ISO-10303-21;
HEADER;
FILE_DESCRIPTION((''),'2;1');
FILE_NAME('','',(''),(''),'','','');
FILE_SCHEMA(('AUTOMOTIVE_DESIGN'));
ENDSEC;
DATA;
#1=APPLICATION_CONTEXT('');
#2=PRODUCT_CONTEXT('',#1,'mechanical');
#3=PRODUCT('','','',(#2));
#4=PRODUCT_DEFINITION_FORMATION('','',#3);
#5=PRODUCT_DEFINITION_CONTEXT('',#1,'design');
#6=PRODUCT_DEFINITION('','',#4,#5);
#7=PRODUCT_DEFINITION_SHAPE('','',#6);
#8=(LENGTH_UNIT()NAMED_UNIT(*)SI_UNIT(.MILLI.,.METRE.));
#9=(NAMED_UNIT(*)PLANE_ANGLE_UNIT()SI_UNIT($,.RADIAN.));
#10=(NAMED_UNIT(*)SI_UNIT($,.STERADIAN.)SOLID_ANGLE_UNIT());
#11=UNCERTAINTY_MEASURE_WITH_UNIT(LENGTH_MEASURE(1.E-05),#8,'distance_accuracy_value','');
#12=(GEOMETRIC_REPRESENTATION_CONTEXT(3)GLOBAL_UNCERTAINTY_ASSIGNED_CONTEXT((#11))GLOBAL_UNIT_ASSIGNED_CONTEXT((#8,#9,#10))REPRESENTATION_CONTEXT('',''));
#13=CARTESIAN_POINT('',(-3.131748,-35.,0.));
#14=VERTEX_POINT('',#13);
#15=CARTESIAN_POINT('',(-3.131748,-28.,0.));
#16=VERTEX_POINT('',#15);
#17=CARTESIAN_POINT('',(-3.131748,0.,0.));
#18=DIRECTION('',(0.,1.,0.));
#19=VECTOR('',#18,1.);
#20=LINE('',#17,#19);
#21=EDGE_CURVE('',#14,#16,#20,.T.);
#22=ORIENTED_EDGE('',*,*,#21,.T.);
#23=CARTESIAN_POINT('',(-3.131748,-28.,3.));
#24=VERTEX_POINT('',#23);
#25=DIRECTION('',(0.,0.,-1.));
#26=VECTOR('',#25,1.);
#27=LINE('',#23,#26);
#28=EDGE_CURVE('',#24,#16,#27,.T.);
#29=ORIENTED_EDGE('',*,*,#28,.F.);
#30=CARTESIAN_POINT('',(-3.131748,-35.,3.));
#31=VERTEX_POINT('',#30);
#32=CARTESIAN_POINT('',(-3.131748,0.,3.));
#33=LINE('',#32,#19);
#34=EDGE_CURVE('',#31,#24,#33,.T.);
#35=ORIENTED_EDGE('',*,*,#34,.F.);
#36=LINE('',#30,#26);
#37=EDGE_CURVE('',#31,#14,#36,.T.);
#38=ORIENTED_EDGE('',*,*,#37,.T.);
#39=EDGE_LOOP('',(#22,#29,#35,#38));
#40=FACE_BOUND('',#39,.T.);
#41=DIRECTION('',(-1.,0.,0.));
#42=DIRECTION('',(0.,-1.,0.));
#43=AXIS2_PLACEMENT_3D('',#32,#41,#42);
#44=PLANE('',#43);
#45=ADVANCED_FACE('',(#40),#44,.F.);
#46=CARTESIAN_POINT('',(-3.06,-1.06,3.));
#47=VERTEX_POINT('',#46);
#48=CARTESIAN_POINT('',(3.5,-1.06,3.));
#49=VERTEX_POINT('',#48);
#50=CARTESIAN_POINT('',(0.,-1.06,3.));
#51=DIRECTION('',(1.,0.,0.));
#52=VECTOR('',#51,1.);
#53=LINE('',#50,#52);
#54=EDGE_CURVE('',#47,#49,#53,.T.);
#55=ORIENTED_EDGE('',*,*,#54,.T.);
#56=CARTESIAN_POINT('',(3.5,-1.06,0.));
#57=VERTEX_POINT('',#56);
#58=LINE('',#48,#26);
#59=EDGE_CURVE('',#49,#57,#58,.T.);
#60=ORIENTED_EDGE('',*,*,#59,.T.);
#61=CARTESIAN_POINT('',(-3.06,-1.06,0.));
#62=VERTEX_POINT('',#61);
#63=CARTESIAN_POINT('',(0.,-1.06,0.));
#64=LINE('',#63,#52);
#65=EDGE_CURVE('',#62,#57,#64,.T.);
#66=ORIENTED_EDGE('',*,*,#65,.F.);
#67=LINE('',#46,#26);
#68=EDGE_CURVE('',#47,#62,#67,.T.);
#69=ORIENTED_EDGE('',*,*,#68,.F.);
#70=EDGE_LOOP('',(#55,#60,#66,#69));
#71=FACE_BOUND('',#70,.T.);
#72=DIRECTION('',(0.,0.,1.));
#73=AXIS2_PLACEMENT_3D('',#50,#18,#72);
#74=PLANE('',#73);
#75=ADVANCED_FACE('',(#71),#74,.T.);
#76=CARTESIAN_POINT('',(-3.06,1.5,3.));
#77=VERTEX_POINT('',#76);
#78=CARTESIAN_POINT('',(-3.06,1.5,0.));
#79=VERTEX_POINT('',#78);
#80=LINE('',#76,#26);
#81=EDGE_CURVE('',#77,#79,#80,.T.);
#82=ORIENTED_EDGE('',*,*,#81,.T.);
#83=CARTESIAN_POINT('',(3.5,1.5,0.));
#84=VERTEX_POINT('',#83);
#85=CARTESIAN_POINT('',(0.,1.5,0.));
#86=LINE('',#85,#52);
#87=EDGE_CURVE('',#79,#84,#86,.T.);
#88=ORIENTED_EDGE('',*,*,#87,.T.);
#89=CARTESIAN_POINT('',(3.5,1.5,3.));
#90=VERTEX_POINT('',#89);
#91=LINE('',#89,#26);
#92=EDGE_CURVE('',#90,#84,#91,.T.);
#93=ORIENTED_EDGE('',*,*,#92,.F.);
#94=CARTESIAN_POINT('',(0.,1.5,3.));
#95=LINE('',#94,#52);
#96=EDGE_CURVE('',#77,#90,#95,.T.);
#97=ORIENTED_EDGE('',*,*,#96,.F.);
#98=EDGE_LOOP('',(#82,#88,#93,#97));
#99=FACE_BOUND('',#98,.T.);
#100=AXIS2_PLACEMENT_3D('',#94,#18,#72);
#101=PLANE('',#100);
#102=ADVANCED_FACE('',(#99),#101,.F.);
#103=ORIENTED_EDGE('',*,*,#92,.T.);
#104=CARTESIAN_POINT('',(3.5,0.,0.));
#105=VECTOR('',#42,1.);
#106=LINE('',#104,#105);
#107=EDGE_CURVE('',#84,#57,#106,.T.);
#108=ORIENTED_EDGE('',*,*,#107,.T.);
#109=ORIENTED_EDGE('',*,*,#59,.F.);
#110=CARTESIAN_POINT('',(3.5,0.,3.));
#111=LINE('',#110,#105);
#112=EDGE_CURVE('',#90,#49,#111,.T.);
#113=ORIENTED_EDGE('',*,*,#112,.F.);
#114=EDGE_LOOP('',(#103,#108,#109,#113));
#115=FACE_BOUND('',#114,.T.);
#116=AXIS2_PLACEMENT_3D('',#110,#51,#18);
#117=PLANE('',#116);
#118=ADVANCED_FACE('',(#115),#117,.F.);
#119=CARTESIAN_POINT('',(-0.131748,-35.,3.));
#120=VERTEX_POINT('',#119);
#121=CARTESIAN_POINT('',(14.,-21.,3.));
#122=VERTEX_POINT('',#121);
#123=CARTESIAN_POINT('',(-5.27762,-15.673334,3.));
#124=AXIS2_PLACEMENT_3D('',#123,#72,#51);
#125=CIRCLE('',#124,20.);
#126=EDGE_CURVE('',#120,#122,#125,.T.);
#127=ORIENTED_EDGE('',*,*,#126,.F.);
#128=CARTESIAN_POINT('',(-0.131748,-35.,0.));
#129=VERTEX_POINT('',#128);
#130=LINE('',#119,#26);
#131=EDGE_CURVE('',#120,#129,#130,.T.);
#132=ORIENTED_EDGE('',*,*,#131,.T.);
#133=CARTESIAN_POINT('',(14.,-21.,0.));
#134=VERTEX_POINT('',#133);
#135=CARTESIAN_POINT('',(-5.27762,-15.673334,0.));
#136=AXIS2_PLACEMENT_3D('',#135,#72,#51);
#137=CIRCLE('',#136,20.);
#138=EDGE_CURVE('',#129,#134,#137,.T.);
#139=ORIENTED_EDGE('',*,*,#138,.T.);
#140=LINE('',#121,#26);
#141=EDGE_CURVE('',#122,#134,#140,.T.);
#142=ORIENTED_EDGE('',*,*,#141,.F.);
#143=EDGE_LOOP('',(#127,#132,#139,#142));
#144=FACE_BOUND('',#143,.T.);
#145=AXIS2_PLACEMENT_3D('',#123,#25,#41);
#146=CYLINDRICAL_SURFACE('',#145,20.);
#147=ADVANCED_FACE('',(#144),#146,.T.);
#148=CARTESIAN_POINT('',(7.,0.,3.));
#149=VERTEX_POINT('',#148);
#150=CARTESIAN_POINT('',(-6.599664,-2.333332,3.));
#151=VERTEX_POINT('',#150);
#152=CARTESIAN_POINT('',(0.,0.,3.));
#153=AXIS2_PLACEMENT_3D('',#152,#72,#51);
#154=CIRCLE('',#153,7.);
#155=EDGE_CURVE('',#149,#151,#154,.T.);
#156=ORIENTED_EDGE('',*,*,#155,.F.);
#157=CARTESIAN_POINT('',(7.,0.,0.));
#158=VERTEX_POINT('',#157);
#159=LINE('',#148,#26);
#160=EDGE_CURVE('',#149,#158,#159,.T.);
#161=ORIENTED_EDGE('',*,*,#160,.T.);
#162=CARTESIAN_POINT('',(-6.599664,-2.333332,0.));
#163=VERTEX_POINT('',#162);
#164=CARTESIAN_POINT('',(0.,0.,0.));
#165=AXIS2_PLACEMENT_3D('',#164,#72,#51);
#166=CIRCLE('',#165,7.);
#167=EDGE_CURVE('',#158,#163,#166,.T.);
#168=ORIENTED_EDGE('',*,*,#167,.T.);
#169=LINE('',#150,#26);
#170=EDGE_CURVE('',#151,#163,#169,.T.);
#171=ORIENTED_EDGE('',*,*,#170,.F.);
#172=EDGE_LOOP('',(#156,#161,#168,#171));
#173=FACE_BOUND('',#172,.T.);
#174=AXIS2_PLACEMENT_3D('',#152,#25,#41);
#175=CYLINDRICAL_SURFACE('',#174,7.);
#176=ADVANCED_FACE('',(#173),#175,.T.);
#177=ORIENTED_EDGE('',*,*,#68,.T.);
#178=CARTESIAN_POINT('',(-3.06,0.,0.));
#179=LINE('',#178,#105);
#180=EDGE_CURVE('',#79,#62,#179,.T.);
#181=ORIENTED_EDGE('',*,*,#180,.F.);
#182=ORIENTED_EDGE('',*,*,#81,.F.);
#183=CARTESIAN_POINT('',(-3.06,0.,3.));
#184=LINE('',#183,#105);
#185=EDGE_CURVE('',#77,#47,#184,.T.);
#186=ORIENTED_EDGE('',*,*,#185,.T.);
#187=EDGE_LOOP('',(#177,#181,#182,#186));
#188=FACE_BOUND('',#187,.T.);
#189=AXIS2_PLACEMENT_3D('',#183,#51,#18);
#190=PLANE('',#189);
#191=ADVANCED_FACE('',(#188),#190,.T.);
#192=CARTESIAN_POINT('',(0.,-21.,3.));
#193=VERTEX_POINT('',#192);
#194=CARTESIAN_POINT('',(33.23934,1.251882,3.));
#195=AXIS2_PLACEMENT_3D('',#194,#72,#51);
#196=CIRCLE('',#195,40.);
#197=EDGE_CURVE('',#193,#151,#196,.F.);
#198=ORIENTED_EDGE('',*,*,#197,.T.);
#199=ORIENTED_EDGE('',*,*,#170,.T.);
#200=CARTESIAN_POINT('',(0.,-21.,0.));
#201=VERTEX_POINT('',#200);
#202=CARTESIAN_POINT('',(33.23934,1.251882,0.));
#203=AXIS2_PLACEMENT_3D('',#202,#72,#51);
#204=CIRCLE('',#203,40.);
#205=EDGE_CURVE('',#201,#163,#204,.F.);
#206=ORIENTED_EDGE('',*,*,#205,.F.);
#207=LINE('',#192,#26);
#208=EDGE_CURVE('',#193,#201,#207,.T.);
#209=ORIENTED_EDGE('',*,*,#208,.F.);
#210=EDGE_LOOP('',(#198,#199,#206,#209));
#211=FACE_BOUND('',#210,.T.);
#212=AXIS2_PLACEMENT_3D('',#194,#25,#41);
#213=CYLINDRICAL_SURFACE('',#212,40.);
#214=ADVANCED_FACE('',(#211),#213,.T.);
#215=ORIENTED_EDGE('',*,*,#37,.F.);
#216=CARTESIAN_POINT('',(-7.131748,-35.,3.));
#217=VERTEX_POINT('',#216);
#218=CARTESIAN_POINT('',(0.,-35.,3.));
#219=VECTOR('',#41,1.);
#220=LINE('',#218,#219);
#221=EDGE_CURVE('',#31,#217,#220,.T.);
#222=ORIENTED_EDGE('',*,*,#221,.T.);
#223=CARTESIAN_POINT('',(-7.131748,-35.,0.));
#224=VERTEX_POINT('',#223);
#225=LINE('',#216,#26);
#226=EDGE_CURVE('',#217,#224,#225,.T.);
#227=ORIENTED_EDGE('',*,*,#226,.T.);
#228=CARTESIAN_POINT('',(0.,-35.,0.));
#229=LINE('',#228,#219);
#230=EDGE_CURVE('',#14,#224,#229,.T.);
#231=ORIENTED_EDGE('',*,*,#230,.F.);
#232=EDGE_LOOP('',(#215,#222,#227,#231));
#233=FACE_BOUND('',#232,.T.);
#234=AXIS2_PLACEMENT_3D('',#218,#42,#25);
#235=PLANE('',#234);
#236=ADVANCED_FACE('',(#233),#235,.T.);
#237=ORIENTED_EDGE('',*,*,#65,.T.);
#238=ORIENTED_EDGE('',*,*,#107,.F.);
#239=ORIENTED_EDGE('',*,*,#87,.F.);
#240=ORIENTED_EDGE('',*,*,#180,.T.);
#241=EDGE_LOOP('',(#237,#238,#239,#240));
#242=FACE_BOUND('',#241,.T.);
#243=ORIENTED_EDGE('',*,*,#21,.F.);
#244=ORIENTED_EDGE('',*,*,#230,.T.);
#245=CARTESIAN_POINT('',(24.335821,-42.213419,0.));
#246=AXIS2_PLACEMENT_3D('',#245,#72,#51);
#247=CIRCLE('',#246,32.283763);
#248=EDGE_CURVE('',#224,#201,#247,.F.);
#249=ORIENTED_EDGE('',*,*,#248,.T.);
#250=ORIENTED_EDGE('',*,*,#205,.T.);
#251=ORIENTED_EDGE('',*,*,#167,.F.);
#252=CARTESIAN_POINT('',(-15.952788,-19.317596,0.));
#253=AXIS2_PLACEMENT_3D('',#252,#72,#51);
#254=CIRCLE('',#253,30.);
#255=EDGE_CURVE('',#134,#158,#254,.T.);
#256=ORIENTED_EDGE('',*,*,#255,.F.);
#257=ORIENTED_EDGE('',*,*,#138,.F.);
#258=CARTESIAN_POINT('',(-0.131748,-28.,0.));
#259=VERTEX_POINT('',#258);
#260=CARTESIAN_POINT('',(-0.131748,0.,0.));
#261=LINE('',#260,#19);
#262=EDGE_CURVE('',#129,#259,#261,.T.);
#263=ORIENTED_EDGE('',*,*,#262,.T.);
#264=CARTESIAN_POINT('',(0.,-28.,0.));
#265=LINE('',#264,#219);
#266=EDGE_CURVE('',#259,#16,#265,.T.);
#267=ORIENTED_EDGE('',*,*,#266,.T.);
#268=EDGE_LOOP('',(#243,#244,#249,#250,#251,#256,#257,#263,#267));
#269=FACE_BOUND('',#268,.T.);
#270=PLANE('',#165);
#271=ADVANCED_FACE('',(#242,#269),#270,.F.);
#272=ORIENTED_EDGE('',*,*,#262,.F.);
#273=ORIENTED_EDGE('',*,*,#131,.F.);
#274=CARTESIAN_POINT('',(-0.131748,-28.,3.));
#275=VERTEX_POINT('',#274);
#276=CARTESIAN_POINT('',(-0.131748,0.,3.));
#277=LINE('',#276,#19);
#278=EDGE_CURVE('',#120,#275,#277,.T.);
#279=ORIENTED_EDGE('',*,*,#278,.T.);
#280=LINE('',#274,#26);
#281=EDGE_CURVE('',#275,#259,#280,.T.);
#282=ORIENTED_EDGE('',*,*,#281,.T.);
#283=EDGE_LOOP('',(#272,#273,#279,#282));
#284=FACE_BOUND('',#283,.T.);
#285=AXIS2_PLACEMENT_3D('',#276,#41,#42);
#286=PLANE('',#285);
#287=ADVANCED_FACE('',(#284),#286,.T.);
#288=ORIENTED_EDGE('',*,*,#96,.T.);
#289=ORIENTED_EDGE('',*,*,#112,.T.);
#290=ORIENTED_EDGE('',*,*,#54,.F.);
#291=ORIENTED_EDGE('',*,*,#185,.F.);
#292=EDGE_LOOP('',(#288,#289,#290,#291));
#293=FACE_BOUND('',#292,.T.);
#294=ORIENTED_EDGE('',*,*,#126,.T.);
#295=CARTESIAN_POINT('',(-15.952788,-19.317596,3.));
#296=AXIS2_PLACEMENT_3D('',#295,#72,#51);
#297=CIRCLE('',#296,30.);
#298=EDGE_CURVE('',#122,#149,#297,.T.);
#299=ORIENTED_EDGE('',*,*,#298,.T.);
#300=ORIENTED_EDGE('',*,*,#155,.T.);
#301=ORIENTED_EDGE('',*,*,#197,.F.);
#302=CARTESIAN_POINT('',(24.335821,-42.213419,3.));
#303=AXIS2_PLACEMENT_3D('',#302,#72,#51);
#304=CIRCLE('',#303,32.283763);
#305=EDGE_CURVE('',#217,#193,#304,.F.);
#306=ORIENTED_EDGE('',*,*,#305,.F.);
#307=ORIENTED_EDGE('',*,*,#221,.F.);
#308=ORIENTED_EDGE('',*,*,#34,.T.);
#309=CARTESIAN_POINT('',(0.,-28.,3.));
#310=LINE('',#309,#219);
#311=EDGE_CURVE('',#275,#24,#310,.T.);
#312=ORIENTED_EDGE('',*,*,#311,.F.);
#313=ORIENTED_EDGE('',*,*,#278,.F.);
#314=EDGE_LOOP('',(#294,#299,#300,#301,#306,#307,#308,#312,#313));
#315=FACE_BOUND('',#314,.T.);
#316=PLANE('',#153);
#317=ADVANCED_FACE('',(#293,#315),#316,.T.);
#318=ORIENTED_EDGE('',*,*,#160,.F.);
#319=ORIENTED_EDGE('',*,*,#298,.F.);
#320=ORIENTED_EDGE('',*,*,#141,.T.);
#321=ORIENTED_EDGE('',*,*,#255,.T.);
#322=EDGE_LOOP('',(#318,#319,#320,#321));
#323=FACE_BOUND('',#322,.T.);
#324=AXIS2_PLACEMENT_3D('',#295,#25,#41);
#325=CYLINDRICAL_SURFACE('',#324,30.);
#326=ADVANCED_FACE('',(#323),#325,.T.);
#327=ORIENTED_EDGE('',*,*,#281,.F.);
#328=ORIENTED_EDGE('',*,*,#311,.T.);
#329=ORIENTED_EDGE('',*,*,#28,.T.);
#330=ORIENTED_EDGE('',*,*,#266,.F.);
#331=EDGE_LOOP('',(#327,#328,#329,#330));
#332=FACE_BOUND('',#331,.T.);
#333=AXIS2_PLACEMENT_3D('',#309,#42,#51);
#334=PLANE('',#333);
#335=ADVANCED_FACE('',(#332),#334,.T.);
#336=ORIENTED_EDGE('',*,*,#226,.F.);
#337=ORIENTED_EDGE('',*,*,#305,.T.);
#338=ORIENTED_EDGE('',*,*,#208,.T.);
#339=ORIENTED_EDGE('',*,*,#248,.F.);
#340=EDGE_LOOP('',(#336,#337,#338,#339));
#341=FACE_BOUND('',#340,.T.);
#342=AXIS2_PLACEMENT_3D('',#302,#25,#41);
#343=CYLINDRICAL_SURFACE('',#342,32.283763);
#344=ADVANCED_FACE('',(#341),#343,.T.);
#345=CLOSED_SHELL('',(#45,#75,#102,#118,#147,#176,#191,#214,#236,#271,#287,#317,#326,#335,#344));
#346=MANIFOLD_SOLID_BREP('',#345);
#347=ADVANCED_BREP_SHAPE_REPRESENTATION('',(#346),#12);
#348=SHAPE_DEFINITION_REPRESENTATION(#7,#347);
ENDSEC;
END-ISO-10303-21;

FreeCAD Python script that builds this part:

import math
import FreeCAD as App
import Part
import Sketcher
from FreeCAD import Vector


def add_polygon(sketch, points):
    """Adds a closed chain of lines whose ends are joined by coincident constraints."""
    first, n = sketch.GeometryCount, len(points)
    for a, b in zip(points, points[1:] + points[:1]):
        sketch.addGeometry(Part.LineSegment(App.Vector(*a, 0), App.Vector(*b, 0)), False)
    for i in range(n):
        sketch.addConstraint(Sketcher.Constraint("Coincident", first + i, 2, first + (i + 1) % n, 1))

doc = App.newDocument("Part")
body = doc.addObject("PartDesign::Body", "Body")

# Sketch on XY plane
sketch1 = body.newObject("Sketcher::SketchObject", "Sketch")
sketch1.AttachmentSupport = (doc.getObject("XY_Plane"), [""])
sketch1.MapMode = "FlatFace"
sketch1.addGeometry(Part.ArcOfCircle(Part.Circle(Vector(33.2, 1.3, 0), Vector(0, 0, 1), 40), math.radians(-175), math.radians(-146)), False)  # 0
sketch1.addGeometry(Part.ArcOfCircle(Part.Circle(Vector(24.3, -42.2, 0), Vector(0, 0, 1), 32.3), math.radians(139), math.radians(167)), False)  # 1
sketch1.addGeometry(Part.LineSegment(Vector(-7.1, -35, 0), Vector(-3.1, -35, 0)), False)  # 2
sketch1.addGeometry(Part.LineSegment(Vector(-3.1, -35, 0), Vector(-3.1, -28, 0)), False)  # 3
sketch1.addGeometry(Part.LineSegment(Vector(-3.1, -28, 0), Vector(-0.1, -28, 0)), False)  # 4
sketch1.addGeometry(Part.LineSegment(Vector(-0.1, -28, 0), Vector(-0.1, -35, 0)), False)  # 5
sketch1.addGeometry(Part.ArcOfCircle(Part.Circle(Vector(-5.3, -15.7, 0), Vector(0, 0, 1), 20), math.radians(-75), math.radians(-31)), False)  # 6
sketch1.addGeometry(Part.ArcOfCircle(Part.Circle(Vector(-5.3, -15.7, 0), Vector(0, 0, 1), 20), math.radians(-31.46), math.radians(-15.45)), False)  # 7
sketch1.addGeometry(Part.ArcOfCircle(Part.Circle(Vector(-16, -19.3, 0), Vector(0, 0, 1), 30), math.radians(-3), math.radians(40)), False)  # 8
sketch1.addGeometry(Part.ArcOfCircle(Part.Circle(Vector(0, 0, 0), Vector(0, 0, 1), 7), math.radians(0), math.radians(199)), False)  # 9
add_polygon(sketch1, [(3.5, -1.1), (-3.1, -1.1), (-3.1, 1.5), (3.5, 1.5)])  # lines 10-13
sketch1.addConstraint([
    Sketcher.Constraint("Coincident", 0, 2, 1, 1),
    Sketcher.Constraint("Coincident", 1, 2, 2, 1),
    Sketcher.Constraint("Coincident", 2, 2, 3, 1),
    Sketcher.Constraint("Coincident", 3, 2, 4, 1),
    Sketcher.Constraint("Coincident", 4, 2, 5, 1),
    Sketcher.Constraint("Coincident", 5, 2, 6, 1),
    Sketcher.Constraint("Tangent", 6, 2, 7, 1),
    Sketcher.Constraint("Coincident", 7, 2, 8, 1),
    Sketcher.Constraint("Coincident", 8, 2, 9, 1),
    Sketcher.Constraint("Coincident", 9, 2, 0, 1),
    Sketcher.Constraint("Horizontal", 2),
    Sketcher.Constraint("Vertical", 3),
    Sketcher.Constraint("Horizontal", 4),
    Sketcher.Constraint("Vertical", 5),
    Sketcher.Constraint("Horizontal", 10),
    Sketcher.Constraint("Vertical", 11),
    Sketcher.Constraint("Horizontal", 12),
    Sketcher.Constraint("Vertical", 13),
    Sketcher.Constraint("Coincident", 9, 3, -1, 1),
    Sketcher.Constraint("Equal", 6, 7),
    Sketcher.Constraint("PointOnObject", 0, 2, -2),
    Sketcher.Constraint("PointOnObject", 8, 2, -1),
    Sketcher.Constraint("Horizontal", 2, 2, 5, 2),
    Sketcher.Constraint("Horizontal", 0, 2, 7, 2),
    Sketcher.Constraint("Radius", 0, 40.0),
    Sketcher.Constraint("Radius", 6, 20.0),
    Sketcher.Constraint("Radius", 8, 30.0),
    Sketcher.Constraint("Radius", 9, 7.0),
    Sketcher.Constraint("DistanceX", 2, 1, 2, 2, 4.0),
    Sketcher.Constraint("DistanceX", 4, 1, 4, 2, 3.0),
    Sketcher.Constraint("DistanceY", 3, 1, 3, 2, 7.0),
    Sketcher.Constraint("DistanceY", 0, 2, -1, 1, 21.0),
    Sketcher.Constraint("DistanceY", 1, 2, -1, 1, 35.0),
    Sketcher.Constraint("DistanceX", -1, 1, 7, 2, 14.0),
    Sketcher.Constraint("DistanceX", 10, 2, 10, 1, 6.56),
    Sketcher.Constraint("DistanceY", 11, 1, 11, 2, 2.56),
    Sketcher.Constraint("DistanceY", -1, 1, 11, 2, 1.5),
    Sketcher.Constraint("DistanceX", -1, 1, 12, 2, 3.5),
    Sketcher.Constraint("DistanceY", 7, 3, 9, 2, 13.340002),
    Sketcher.Constraint("Radius", 1, 32.283763),
    Sketcher.Constraint("DistanceY", 1, 3, 0, 3, 43.465301),
    Sketcher.Constraint("DistanceX", -1, 1, 6, 2, 11.782258),
])
pad1 = body.newObject("PartDesign::Pad", "Pad")
pad1.Profile = sketch1
pad1.Length = 3

doc.recompute()
